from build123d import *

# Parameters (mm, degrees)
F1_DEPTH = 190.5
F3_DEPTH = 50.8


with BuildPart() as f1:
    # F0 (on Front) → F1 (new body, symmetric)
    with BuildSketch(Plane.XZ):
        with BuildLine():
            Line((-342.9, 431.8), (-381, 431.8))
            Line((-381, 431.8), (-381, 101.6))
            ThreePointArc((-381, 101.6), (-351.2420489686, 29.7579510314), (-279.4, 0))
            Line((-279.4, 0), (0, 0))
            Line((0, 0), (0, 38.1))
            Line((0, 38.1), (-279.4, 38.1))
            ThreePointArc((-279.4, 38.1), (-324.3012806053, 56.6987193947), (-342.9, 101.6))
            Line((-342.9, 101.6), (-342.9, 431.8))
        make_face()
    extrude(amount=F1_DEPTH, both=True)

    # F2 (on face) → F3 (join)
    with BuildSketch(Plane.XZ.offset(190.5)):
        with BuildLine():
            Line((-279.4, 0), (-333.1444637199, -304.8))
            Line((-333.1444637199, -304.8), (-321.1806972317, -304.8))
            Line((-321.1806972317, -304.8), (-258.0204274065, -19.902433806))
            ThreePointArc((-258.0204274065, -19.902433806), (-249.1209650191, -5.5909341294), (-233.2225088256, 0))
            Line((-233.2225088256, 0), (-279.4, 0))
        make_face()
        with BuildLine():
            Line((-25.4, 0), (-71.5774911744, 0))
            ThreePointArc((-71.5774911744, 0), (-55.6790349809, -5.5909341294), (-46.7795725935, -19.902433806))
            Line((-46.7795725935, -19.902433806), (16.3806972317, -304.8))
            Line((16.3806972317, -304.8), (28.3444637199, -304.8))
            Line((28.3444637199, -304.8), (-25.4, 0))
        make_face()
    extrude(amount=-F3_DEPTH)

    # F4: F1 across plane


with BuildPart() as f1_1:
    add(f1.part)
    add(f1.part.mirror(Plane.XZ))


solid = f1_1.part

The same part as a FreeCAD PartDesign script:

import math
import FreeCAD as App
import Part
import Sketcher
Q = App.Units.Quantity

doc = App.newDocument("Part")
body = doc.addObject("PartDesign::Body", "Body")

sketch1 = body.newObject("Sketcher::SketchObject", "Sketch")
sketch1.AttachmentSupport = (doc.getObject("XZ_Plane"), [""])
sketch1.MapMode = "FlatFace"
sketch1.addGeometry([
    Part.LineSegment(App.Vector(-342.9, 431.8, 0), App.Vector(-381, 431.8, 0)),
    Part.LineSegment(App.Vector(-381, 431.8, 0), App.Vector(-381, 101.6, 0)),
    Part.ArcOfCircle(Part.Circle(App.Vector(-279.4, 101.6, 0), App.Vector(0, 0, 1), 101.6), math.radians(180), math.radians(270)),
    Part.LineSegment(App.Vector(-279.4, 0, 0), App.Vector(0, 0, 0)),
    Part.LineSegment(App.Vector(0, 0, 0), App.Vector(0, 38.1, 0)),
    Part.LineSegment(App.Vector(0, 38.1, 0), App.Vector(-279.4, 38.1, 0)),
    Part.ArcOfCircle(Part.Circle(App.Vector(-279.4, 101.6, 0), App.Vector(0, 0, 1), 63.5), math.radians(180), math.radians(270)),
    Part.LineSegment(App.Vector(-342.9, 101.6, 0), App.Vector(-342.9, 431.8, 0)),
], False)
sketch1.addConstraint([
    Sketcher.Constraint("Coincident", 0, 2, 1, 1),
    Sketcher.Constraint("Tangent", 1, 2, 2, 1),
    Sketcher.Constraint("Tangent", 2, 2, 3, 1),
    Sketcher.Constraint("Coincident", 3, 2, 4, 1),
    Sketcher.Constraint("Coincident", 4, 2, 5, 1),
    Sketcher.Constraint("Tangent", 5, 2, 6, 2),
    Sketcher.Constraint("Tangent", 6, 1, 7, 1),
    Sketcher.Constraint("Coincident", 7, 2, 0, 1),
    Sketcher.Constraint("Horizontal", 0),
    Sketcher.Constraint("Vertical", 1),
    Sketcher.Constraint("Horizontal", 3),
    Sketcher.Constraint("Vertical", 4),
    Sketcher.Constraint("Horizontal", 5),
    Sketcher.Constraint("Vertical", 7),
    Sketcher.Constraint("Coincident", 3, 2, -1, 1),
    Sketcher.Constraint("Coincident", 6, 3, 2, 3),
    Sketcher.Constraint("Radius", 2, Q("4 in")),
    Sketcher.Constraint("Radius", 6, Q("2.5 in")),
    Sketcher.Constraint("DistanceX", 3, 1, 3, 2, Q("11 in")),
    Sketcher.Constraint("DistanceY", 1, 2, 1, 1, Q("13 in")),
])
pad1 = body.newObject("PartDesign::Pad", "Pad")
pad1.Profile = sketch1
pad1.Length = Q("15 in")
pad1.Midplane = True

sketch2 = body.newObject("Sketcher::SketchObject", "Sketch001")
sketch2.AttachmentSupport = (doc.getObject("XZ_Plane"), [""])
sketch2.MapMode = "FlatFace"
sketch2.AttachmentOffset = App.Placement(App.Vector(0, 0, 7.5 * 25.4), App.Rotation())
sketch2.addGeometry([
    Part.LineSegment(App.Vector(-279.4, 0, 0), App.Vector(-333.144464, -304.8, 0)),
    Part.LineSegment(App.Vector(-333.144464, -304.8, 0), App.Vector(-321.180697, -304.8, 0)),
    Part.LineSegment(App.Vector(-321.180697, -304.8, 0), App.Vector(-258.020427, -19.902434, 0)),
    Part.ArcOfCircle(Part.Circle(App.Vector(-233.222509, -25.4, 0), App.Vector(0, 0, 1), 25.4), math.radians(90), math.radians(167.5)),
    Part.LineSegment(App.Vector(-233.222509, 0, 0), App.Vector(-279.4, 0, 0)),
    Part.LineSegment(App.Vector(-25.4, 0, 0), App.Vector(-71.577491, 0, 0)),
    Part.ArcOfCircle(Part.Circle(App.Vector(-71.577491, -25.4, 0), App.Vector(0, 0, 1), 25.4), math.radians(12.5), math.radians(90)),
    Part.LineSegment(App.Vector(-46.779573, -19.902434, 0), App.Vector(16.380697, -304.8, 0)),
    Part.LineSegment(App.Vector(16.380697, -304.8, 0), App.Vector(28.344464, -304.8, 0)),
    Part.LineSegment(App.Vector(28.344464, -304.8, 0), App.Vector(-25.4, 0, 0)),
], False)
sketch2.addConstraint([
    Sketcher.Constraint("Coincident", 0, 2, 1, 1),
    Sketcher.Constraint("Coincident", 1, 2, 2, 1),
    Sketcher.Constraint("Tangent", 2, 2, 3, 2),
    Sketcher.Constraint("Tangent", 3, 1, 4, 1),
    Sketcher.Constraint("Coincident", 4, 2, 0, 1),
    Sketcher.Constraint("Tangent", 5, 2, 6, 2),
    Sketcher.Constraint("Tangent", 6, 1, 7, 1),
    Sketcher.Constraint("Coincident", 7, 2, 8, 1),
    Sketcher.Constraint("Coincident", 8, 2, 9, 1),
    Sketcher.Constraint("Coincident", 9, 2, 5, 1),
    Sketcher.Constraint("Horizontal", 1),
    Sketcher.Constraint("Horizontal", 4),
    Sketcher.Constraint("Horizontal", 5),
    Sketcher.Constraint("Horizontal", 8),
    Sketcher.Constraint("Equal", 3, 6),
    Sketcher.Constraint("PointOnObject", 3, 1, -1),
    Sketcher.Constraint("PointOnObject", 5, 2, -1),
    Sketcher.Constraint("Horizontal", 2, 2, 6, 1),
    Sketcher.Constraint("Horizontal", 1, 2, 7, 2),
    Sketcher.Constraint("Equal", 4, 5),
    Sketcher.Constraint("Equal", 1, 8),
    Sketcher.Constraint("Radius", 3, Q("1 in")),
    Sketcher.Constraint("DistanceY", 0, 2, -1, 1, Q("12 in")),
    Sketcher.Constraint("DistanceX", 4, 2, -1, 1, Q("11 in")),
    Sketcher.Constraint("DistanceX", 9, 2, -1, 1, Q("1 in")),
    Sketcher.Constraint("Angle", 0, Q("-100 deg")),
    Sketcher.Constraint("Angle", 2, Q("77.5 deg")),
    Sketcher.Constraint("DistanceX", 4, 2, 4, 1, Q("46.177491 mm")),
])
pad2 = body.newObject("PartDesign::Pad", "Pad001")
pad2.Profile = sketch2
pad2.Length = Q("2 in")
pad2.Reversed = True
body2 = doc.addObject("PartDesign::Body", "Body001")
doc.recompute()

body2.BaseFeature = body
doc.recompute()

mirroring = doc.addObject("Part::Mirroring", "Mirroring")
mirroring.Source = body
mirroring.Base = App.Vector(0, 0, 0)
mirroring.Normal = App.Vector(0, -1, 0)
body3 = doc.addObject("PartDesign::Body", "Body002")
body3.BaseFeature = mirroring
boolean = body2.newObject("PartDesign::Boolean", "Boolean")
boolean.Type = "Fuse"
boolean.addObjects([body3])
doc.recompute()
mirroring.Visibility = False

doc.recompute()
